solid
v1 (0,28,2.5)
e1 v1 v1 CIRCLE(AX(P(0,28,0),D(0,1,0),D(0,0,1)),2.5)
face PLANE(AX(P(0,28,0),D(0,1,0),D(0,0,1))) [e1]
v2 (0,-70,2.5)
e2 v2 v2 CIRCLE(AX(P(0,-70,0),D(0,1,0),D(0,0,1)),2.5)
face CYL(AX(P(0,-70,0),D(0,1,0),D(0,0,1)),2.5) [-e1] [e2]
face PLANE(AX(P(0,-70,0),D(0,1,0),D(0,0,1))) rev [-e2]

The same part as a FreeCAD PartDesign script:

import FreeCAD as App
import Part
import Sketcher

V = App.Vector

doc = App.newDocument("Part")
params = doc.addObject("Spreadsheet::Sheet", "Params")
for row, (alias, value) in enumerate([
    ("sketch1_diameter", "5 mm"),
    ("pad1_length", "28 mm"),
    ("pad1_length2", "70 mm"),
], start=1):
    params.set(f"A{row}", alias)
    params.set(f"B{row}", "=" + value)
    params.setAlias(f"B{row}", alias)

body = doc.addObject("PartDesign::Body", "Body")

sketch1 = body.newObject("Sketcher::SketchObject", "Sketch")
sketch1.AttachmentSupport = (doc.getObject("XZ_Plane"), [""])
sketch1.MapMode = "FlatFace"
sketch1.addGeometry(Part.Circle(V(0, 0, 0), V(0, 0, 1), 2.5), False)
sketch1.addConstraint(Sketcher.Constraint("Coincident", 0, 3, -1, 1))
sketch1.addConstraint(Sketcher.Constraint("Diameter", 0, 5.0))
sketch1.setExpression("Constraints[1]", "Params.sketch1_diameter")
pad1 = body.newObject("PartDesign::Pad", "Pad")
pad1.Profile = sketch1
pad1.Type = "TwoLengths"
pad1.setExpression("Length", "Params.pad1_length")
pad1.setExpression("Length2", "Params.pad1_length2")
pad1.Reversed = True

doc.recompute()
